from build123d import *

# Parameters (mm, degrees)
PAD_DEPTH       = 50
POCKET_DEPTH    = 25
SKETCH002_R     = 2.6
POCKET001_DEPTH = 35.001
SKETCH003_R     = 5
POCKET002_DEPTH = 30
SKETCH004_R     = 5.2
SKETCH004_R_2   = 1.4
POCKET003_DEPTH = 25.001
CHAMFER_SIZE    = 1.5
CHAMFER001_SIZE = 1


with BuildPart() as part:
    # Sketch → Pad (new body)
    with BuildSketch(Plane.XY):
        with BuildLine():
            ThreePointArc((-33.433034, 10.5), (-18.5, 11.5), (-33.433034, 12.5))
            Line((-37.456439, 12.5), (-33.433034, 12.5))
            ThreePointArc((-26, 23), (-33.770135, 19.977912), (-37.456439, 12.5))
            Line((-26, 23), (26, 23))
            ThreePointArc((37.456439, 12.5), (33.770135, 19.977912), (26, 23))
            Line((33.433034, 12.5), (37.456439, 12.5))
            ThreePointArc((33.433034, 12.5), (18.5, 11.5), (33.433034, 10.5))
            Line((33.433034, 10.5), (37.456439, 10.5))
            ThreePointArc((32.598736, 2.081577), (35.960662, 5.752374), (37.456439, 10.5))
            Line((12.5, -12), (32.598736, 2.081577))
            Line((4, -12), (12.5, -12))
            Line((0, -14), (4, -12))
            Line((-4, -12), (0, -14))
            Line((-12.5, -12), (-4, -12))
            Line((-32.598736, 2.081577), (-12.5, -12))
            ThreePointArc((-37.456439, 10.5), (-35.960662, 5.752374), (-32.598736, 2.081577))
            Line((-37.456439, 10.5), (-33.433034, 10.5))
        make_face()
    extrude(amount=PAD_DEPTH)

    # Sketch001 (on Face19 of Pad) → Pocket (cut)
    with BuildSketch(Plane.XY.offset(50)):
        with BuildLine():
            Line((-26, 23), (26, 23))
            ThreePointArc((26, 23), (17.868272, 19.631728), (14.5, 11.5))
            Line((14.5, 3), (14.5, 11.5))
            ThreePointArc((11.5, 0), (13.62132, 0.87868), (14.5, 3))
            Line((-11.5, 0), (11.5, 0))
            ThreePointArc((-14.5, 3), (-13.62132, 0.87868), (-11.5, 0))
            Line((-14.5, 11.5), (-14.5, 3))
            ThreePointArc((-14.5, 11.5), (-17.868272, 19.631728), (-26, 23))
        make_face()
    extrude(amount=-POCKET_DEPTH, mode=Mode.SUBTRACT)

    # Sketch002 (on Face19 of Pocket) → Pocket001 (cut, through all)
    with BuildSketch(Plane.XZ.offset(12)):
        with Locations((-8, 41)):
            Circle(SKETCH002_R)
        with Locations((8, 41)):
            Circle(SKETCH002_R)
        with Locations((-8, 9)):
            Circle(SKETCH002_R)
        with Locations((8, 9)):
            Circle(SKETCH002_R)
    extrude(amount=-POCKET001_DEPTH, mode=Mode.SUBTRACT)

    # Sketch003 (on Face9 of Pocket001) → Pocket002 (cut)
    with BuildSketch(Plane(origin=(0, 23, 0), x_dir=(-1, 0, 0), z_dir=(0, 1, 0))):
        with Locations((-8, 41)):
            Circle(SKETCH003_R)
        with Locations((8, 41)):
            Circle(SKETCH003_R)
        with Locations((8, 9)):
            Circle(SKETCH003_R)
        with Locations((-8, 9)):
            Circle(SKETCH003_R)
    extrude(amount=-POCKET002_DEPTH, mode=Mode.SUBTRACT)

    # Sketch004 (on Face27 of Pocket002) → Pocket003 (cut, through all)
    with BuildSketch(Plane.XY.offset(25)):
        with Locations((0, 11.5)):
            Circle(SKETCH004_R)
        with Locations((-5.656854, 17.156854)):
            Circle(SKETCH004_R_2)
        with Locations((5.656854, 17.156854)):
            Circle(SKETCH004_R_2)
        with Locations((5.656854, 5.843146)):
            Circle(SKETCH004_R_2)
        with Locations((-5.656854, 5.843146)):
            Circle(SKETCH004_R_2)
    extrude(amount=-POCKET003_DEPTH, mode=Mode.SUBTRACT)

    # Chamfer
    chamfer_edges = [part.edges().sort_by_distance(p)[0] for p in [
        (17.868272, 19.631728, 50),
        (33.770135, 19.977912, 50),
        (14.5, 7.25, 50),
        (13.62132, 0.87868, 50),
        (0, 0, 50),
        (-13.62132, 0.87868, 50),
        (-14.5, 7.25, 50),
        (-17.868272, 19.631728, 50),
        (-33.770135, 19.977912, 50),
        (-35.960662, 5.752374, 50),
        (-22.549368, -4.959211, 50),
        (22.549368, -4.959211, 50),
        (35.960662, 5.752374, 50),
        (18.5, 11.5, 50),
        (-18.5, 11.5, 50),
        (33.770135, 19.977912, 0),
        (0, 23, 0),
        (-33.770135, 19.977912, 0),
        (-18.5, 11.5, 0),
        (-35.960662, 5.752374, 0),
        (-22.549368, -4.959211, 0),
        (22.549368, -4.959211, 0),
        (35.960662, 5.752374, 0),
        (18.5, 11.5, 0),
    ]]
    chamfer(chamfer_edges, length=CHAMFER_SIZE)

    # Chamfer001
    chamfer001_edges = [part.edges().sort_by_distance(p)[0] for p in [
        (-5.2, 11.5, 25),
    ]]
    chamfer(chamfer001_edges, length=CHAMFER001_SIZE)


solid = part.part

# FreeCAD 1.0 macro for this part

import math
import FreeCAD as App
import Part
import Sketcher

V = App.Vector
Q = App.Units.Quantity


def edges_at(feature, points):
    """Names of the edges that pass closest to the given points."""
    edges = feature.Shape.Edges
    near = lambda p: min(range(len(edges)), key=lambda i: edges[i].distToShape(Part.Vertex(*p))[0])
    return sorted({f"Edge{near(p) + 1}" for p in points})

doc = App.newDocument("Part")
body = doc.addObject("PartDesign::Body", "Body")

sketch1 = doc.addObject("Sketcher::SketchObject", "Sketch")
body.addObject(sketch1)
sketch1.AttachmentSupport = (doc.XY_Plane, [""])
sketch1.MapMode = "FlatFace"
sketch1.addGeometry(Part.ArcOfCircle(Part.Circle(V(-26, 11.5, 0), V(0, 0, 1), 7.5), math.radians(-172), math.radians(172)), False)
sketch1.addGeometry(Part.LineSegment(V(-33.4, 10.5, 0), V(-37.5, 10.5, 0)), False)
sketch1.addGeometry(Part.ArcOfCircle(Part.Circle(V(-26, 11.5, 0), V(0, 0, 1), 11.5), math.radians(-175), math.radians(-125)), False)
sketch1.addGeometry(Part.LineSegment(V(-32.6, 2.1, 0), V(-12.5, -12, 0)), False)
sketch1.addGeometry(Part.LineSegment(V(-12.5, -12, 0), V(-4, -12, 0)), False)
sketch1.addGeometry(Part.LineSegment(V(-4, -12, 0), V(0, -14, 0)), False)
sketch1.addGeometry(Part.LineSegment(V(0, -14, 0), V(4, -12, 0)), False)
sketch1.addGeometry(Part.LineSegment(V(4, -12, 0), V(12.5, -12, 0)), False)
sketch1.addGeometry(Part.LineSegment(V(12.5, -12, 0), V(32.6, 2.1, 0)), False)
sketch1.addGeometry(Part.ArcOfCircle(Part.Circle(V(26, 11.5, 0), V(0, 0, 1), 11.5), math.radians(-55), math.radians(-5)), False)
sketch1.addGeometry(Part.LineSegment(V(37.5, 10.5, 0), V(33.4, 10.5, 0)), False)
sketch1.addGeometry(Part.ArcOfCircle(Part.Circle(V(26, 11.5, 0), V(0, 0, 1), 7.5), math.radians(8), math.radians(352)), False)
sketch1.addGeometry(Part.LineSegment(V(33.4, 12.5, 0), V(37.5, 12.5, 0)), False)
sketch1.addGeometry(Part.ArcOfCircle(Part.Circle(V(26, 11.5, 0), V(0, 0, 1), 11.5), math.radians(5), math.radians(90)), False)
sketch1.addGeometry(Part.LineSegment(V(26, 23, 0), V(-26, 23, 0)), False)
sketch1.addGeometry(Part.ArcOfCircle(Part.Circle(V(-26, 11.5, 0), V(0, 0, 1), 11.5), math.radians(90), math.radians(175)), False)
sketch1.addGeometry(Part.LineSegment(V(-37.5, 12.5, 0), V(-33.4, 12.5, 0)), False)
sketch1.addConstraint(Sketcher.Constraint("Coincident", 0, 1, 1, 1))
sketch1.addConstraint(Sketcher.Constraint("Coincident", 1, 2, 2, 1))
sketch1.addConstraint(Sketcher.Constraint("Tangent", 2, 2, 3, 1))
sketch1.addConstraint(Sketcher.Constraint("Coincident", 3, 2, 4, 1))
sketch1.addConstraint(Sketcher.Constraint("Coincident", 4, 2, 5, 1))
sketch1.addConstraint(Sketcher.Constraint("Coincident", 5, 2, 6, 1))
sketch1.addConstraint(Sketcher.Constraint("Coincident", 6, 2, 7, 1))
sketch1.addConstraint(Sketcher.Constraint("Coincident", 7, 2, 8, 1))
sketch1.addConstraint(Sketcher.Constraint("Tangent", 8, 2, 9, 1))
sketch1.addConstraint(Sketcher.Constraint("Coincident", 9, 2, 10, 1))
sketch1.addConstraint(Sketcher.Constraint("Coincident", 10, 2, 11, 2))
sketch1.addConstraint(Sketcher.Constraint("Coincident", 11, 1, 12, 1))
sketch1.addConstraint(Sketcher.Constraint("Coincident", 12, 2, 13, 1))
sketch1.addConstraint(Sketcher.Constraint("Tangent", 13, 2, 14, 1))
sketch1.addConstraint(Sketcher.Constraint("Tangent", 14, 2, 15, 1))
sketch1.addConstraint(Sketcher.Constraint("Coincident", 15, 2, 16, 1))
sketch1.addConstraint(Sketcher.Constraint("Coincident", 16, 2, 0, 2))
sketch1.addConstraint(Sketcher.Constraint("Horizontal", 1))
sketch1.addConstraint(Sketcher.Constraint("Horizontal", 4))
sketch1.addConstraint(Sketcher.Constraint("Horizontal", 7))
sketch1.addConstraint(Sketcher.Constraint("Horizontal", 10))
sketch1.addConstraint(Sketcher.Constraint("Horizontal", 12))
sketch1.addConstraint(Sketcher.Constraint("Horizontal", 14))
sketch1.addConstraint(Sketcher.Constraint("Horizontal", 16))
sketch1.addConstraint(Sketcher.Constraint("Coincident", 2, 3, 0, 3))
sketch1.addConstraint(Sketcher.Constraint("Coincident", 11, 3, 9, 3))
sketch1.addConstraint(Sketcher.Constraint("Coincident", 13, 3, 9, 3))
sketch1.addConstraint(Sketcher.Constraint("Coincident", 15, 3, 0, 3))
sketch1.addConstraint(Sketcher.Constraint("Equal", 2, 9))
sketch1.addConstraint(Sketcher.Constraint("Equal", 0, 11))
sketch1.addConstraint(Sketcher.Constraint("Equal", 13, 15))
sketch1.addConstraint(Sketcher.Constraint("Symmetric", 4, 2, 6, 2, -2))
sketch1.addConstraint(Sketcher.Constraint("Symmetric", 2, 2, 8, 2, -2))
sketch1.addConstraint(Sketcher.Constraint("PointOnObject", 5, 2, -2))
sketch1.addConstraint(Sketcher.Constraint("Horizontal", 1, 2, 9, 2))
sketch1.addConstraint(Sketcher.Constraint("Horizontal", 12, 2, 15, 2))
sketch1.addConstraint(Sketcher.Constraint("Vertical", 10, 2, 11, 1))
sketch1.addConstraint(Sketcher.Constraint("Vertical", 9, 2, 12, 2))
sketch1.addConstraint(Sketcher.Constraint("Radius", 0, Q("7.5 mm")))
sketch1.addConstraint(Sketcher.Constraint("Radius", 13, Q("11.500001 mm")))
sketch1.addConstraint(Sketcher.Constraint("DistanceX", 14, 2, 14, 1, Q("52 mm")))
sketch1.addConstraint(Sketcher.Constraint("DistanceX", 4, 1, 4, 2, Q("8.5 mm")))
sketch1.addConstraint(Sketcher.Constraint("DistanceY", 3, 2, -1, 1, Q("12 mm")))
sketch1.addConstraint(Sketcher.Constraint("DistanceX", 4, 2, -1, 1, Q("4 mm")))
sketch1.addConstraint(Sketcher.Constraint("DistanceY", 5, 2, -1, 1, Q("14 mm")))
sketch1.addConstraint(Sketcher.Constraint("DistanceY", -1, 1, 13, 2, Q("23 mm")))
sketch1.addConstraint(Sketcher.Constraint("DistanceY", 0, 1, 0, 3, Q("1 mm")))
pad1 = doc.addObject("PartDesign::Pad", "Pad")
body.addObject(pad1)
pad1.Profile = sketch1
pad1.Length = 50

sketch2 = doc.addObject("Sketcher::SketchObject", "Sketch001")
body.addObject(sketch2)
sketch2.AttachmentSupport = (doc.XY_Plane, [""])
sketch2.MapMode = "FlatFace"
sketch2.AttachmentOffset = App.Placement(V(0, 0, 50), App.Rotation())
sketch2.addGeometry(Part.LineSegment(V(26, 23, 0), V(-26, 23, 0)), False)
sketch2.addGeometry(Part.ArcOfCircle(Part.Circle(V(-26, 11.5, 0), V(0, 0, 1), 11.5), math.radians(0), math.radians(90)), False)
sketch2.addGeometry(Part.LineSegment(V(-14.5, 11.5, 0), V(-14.5, 3, 0)), False)
sketch2.addGeometry(Part.ArcOfCircle(Part.Circle(V(-11.5, 3, 0), V(0, 0, 1), 3), math.radians(-180), math.radians(-90)), False)
sketch2.addGeometry(Part.LineSegment(V(-11.5, 0, 0), V(11.5, 0, 0)), False)
sketch2.addGeometry(Part.ArcOfCircle(Part.Circle(V(11.5, 3, 0), V(0, 0, 1), 3), math.radians(-90), math.radians(0)), False)
sketch2.addGeometry(Part.LineSegment(V(14.5, 3, 0), V(14.5, 11.5, 0)), False)
sketch2.addGeometry(Part.ArcOfCircle(Part.Circle(V(26, 11.5, 0), V(0, 0, 1), 11.5), math.radians(90), math.radians(180)), False)
sketch2.addConstraint(Sketcher.Constraint("Tangent", 0, 2, 1, 2))
sketch2.addConstraint(Sketcher.Constraint("Tangent", 1, 1, 2, 1))
sketch2.addConstraint(Sketcher.Constraint("Tangent", 2, 2, 3, 1))
sketch2.addConstraint(Sketcher.Constraint("Tangent", 3, 2, 4, 1))
sketch2.addConstraint(Sketcher.Constraint("Tangent", 4, 2, 5, 1))
sketch2.addConstraint(Sketcher.Constraint("Tangent", 5, 2, 6, 1))
sketch2.addConstraint(Sketcher.Constraint("Tangent", 6, 2, 7, 2))
sketch2.addConstraint(Sketcher.Constraint("Tangent", 7, 1, 0, 1))
sketch2.addConstraint(Sketcher.Constraint("Horizontal", 0))
sketch2.addConstraint(Sketcher.Constraint("Vertical", 2))
sketch2.addConstraint(Sketcher.Constraint("Horizontal", 4))
sketch2.addConstraint(Sketcher.Constraint("Vertical", 6))
sketch2.addConstraint(Sketcher.Constraint("Equal", 3, 5))
sketch2.addConstraint(Sketcher.Constraint("Equal", 1, 7))
sketch2.addConstraint(Sketcher.Constraint("Symmetric", 3, 2, 4, 2, -1, 1))
sketch2.addConstraint(Sketcher.Constraint("Radius", 3, Q("3.000001 mm")))
sketch2.addConstraint(Sketcher.Constraint("Radius", 1, Q("11.5 mm")))
sketch2.addConstraint(Sketcher.Constraint("DistanceX", 0, 2, 0, 1, Q("52 mm")))
sketch2.addConstraint(Sketcher.Constraint("DistanceY", 2, 2, 2, 1, Q("8.5 mm")))
pocket1 = doc.addObject("PartDesign::Pocket", "Pocket")
body.addObject(pocket1)
pocket1.Profile = sketch2
pocket1.Length = 25

sketch3 = doc.addObject("Sketcher::SketchObject", "Sketch002")
body.addObject(sketch3)
sketch3.AttachmentSupport = (doc.XZ_Plane, [""])
sketch3.MapMode = "FlatFace"
sketch3.AttachmentOffset = App.Placement(V(0, 0, 12), App.Rotation())
sketch3.addGeometry(Part.Circle(V(-8, 41, 0), V(0, 0, 1), 2.6), False)
sketch3.addGeometry(Part.Circle(V(8, 41, 0), V(0, 0, 1), 2.6), False)
sketch3.addGeometry(Part.Circle(V(-8, 9, 0), V(0, 0, 1), 2.6), False)
sketch3.addGeometry(Part.Circle(V(8, 9, 0), V(0, 0, 1), 2.6), False)
sketch3.addConstraint(Sketcher.Constraint("Equal", 0, 1))
sketch3.addConstraint(Sketcher.Constraint("Equal", 1, 2))
sketch3.addConstraint(Sketcher.Constraint("Equal", 2, 3))
sketch3.addConstraint(Sketcher.Constraint("Symmetric", 0, 3, 1, 3, -2))
sketch3.addConstraint(Sketcher.Constraint("Symmetric", 2, 3, 3, 3, -2))
sketch3.addConstraint(Sketcher.Constraint("Vertical", 0, 3, 2, 3))
sketch3.addConstraint(Sketcher.Constraint("Diameter", 0, Q("5.2 mm")))
sketch3.addConstraint(Sketcher.Constraint("DistanceX", 0, 3, -1, 1, Q("8 mm")))
sketch3.addConstraint(Sketcher.Constraint("DistanceY", -1, 1, 0, 3, Q("41 mm")))
sketch3.addConstraint(Sketcher.Constraint("DistanceY", -1, 1, 2, 3, Q("9 mm")))
pocket2 = doc.addObject("PartDesign::Pocket", "Pocket001")
body.addObject(pocket2)
pocket2.Profile = sketch3
pocket2.Type = "ThroughAll"

sketch4 = doc.addObject("Sketcher::SketchObject", "Sketch003")
body.addObject(sketch4)
sketch4.AttachmentSupport = (doc.XZ_Plane, [""])
sketch4.MapMode = "FlatFace"
sketch4.AttachmentOffset = App.Placement(V(0, 0, -23), App.Rotation())
sketch4.addGeometry(Part.Circle(V(8, 41, 0), V(0, 0, 1), 5), False)
sketch4.addGeometry(Part.Circle(V(-8, 41, 0), V(0, 0, 1), 5), False)
sketch4.addGeometry(Part.Circle(V(-8, 9, 0), V(0, 0, 1), 5), False)
sketch4.addGeometry(Part.Circle(V(8, 9, 0), V(0, 0, 1), 5), False)
sketch4.addConstraint(Sketcher.Constraint("Equal", 0, 1))
sketch4.addConstraint(Sketcher.Constraint("Equal", 1, 2))
sketch4.addConstraint(Sketcher.Constraint("Equal", 2, 3))
sketch4.addConstraint(Sketcher.Constraint("Symmetric", 0, 3, 1, 3, -2))
sketch4.addConstraint(Sketcher.Constraint("Symmetric", 2, 3, 3, 3, -2))
sketch4.addConstraint(Sketcher.Constraint("Vertical", 1, 3, 2, 3))
sketch4.addConstraint(Sketcher.Constraint("Diameter", 0, Q("10 mm")))
sketch4.addConstraint(Sketcher.Constraint("DistanceX", -1, 1, 0, 3, Q("8 mm")))
sketch4.addConstraint(Sketcher.Constraint("DistanceY", -1, 1, 0, 3, Q("41 mm")))
sketch4.addConstraint(Sketcher.Constraint("DistanceY", -1, 1, 2, 3, Q("9 mm")))
pocket3 = doc.addObject("PartDesign::Pocket", "Pocket002")
body.addObject(pocket3)
pocket3.Profile = sketch4
pocket3.Length = 30
pocket3.Reversed = True

sketch5 = doc.addObject("Sketcher::SketchObject", "Sketch004")
body.addObject(sketch5)
sketch5.AttachmentSupport = (doc.XY_Plane, [""])
sketch5.MapMode = "FlatFace"
sketch5.AttachmentOffset = App.Placement(V(0, 0, 25), App.Rotation())
sketch5.addGeometry(Part.Circle(V(0, 11.5, 0), V(0, 0, 1), 5.2), False)
sketch5.addGeometry(Part.Circle(V(-5.7, 17.2, 0), V(0, 0, 1), 1.4), False)
sketch5.addGeometry(Part.Circle(V(5.7, 17.2, 0), V(0, 0, 1), 1.4), False)
sketch5.addGeometry(Part.Circle(V(5.7, 5.8, 0), V(0, 0, 1), 1.4), False)
sketch5.addGeometry(Part.Circle(V(-5.7, 5.8, 0), V(0, 0, 1), 1.4), False)
sketch5.addConstraint(Sketcher.Constraint("Equal", 1, 2))
sketch5.addConstraint(Sketcher.Constraint("Equal", 2, 3))
sketch5.addConstraint(Sketcher.Constraint("Equal", 3, 4))
sketch5.addConstraint(Sketcher.Constraint("Symmetric", 1, 3, 2, 3, -2))
sketch5.addConstraint(Sketcher.Constraint("Symmetric", 3, 3, 4, 3, -2))
sketch5.addConstraint(Sketcher.Constraint("PointOnObject", 0, 3, -2))
sketch5.addConstraint(Sketcher.Constraint("Vertical", 2, 3, 3, 3))
sketch5.addConstraint(Sketcher.Constraint("Diameter", 0, Q("10.4 mm")))
sketch5.addConstraint(Sketcher.Constraint("Diameter", 1, Q("2.8 mm")))
sketch5.addConstraint(Sketcher.Constraint("DistanceY", -1, 1, 0, 3, Q("11.5 mm")))
sketch5.addConstraint(Sketcher.Constraint("DistanceX", 1, 3, -1, 1, Q("5.656854 mm")))
sketch5.addConstraint(Sketcher.Constraint("DistanceY", -1, 1, 1, 3, Q("17.156854 mm")))
sketch5.addConstraint(Sketcher.Constraint("DistanceY", -1, 1, 3, 3, Q("5.843146 mm")))
pocket4 = doc.addObject("PartDesign::Pocket", "Pocket003")
body.addObject(pocket4)
pocket4.Profile = sketch5
pocket4.Type = "ThroughAll"
doc.recompute()

chamfer = doc.addObject("PartDesign::Chamfer", "Chamfer")
body.addObject(chamfer)
chamfer.Base = (pocket4, edges_at(pocket4, [
    (17.868, 19.632, 50),
    (33.77, 19.978, 50),
    (14.5, 7.25, 50),
    (13.621, 0.879, 50),
    (0, 0, 50),
    (-13.621, 0.879, 50),
    (-14.5, 7.25, 50),
    (-17.868, 19.632, 50),
    (-33.77, 19.978, 50),
    (-35.961, 5.752, 50),
    (-22.549, -4.959, 50),
    (22.549, -4.959, 50),
    (35.961, 5.752, 50),
    (18.5, 11.5, 50),
    (-18.5, 11.5, 50),
    (33.77, 19.978, 0),
    (0, 23, 0),
    (-33.77, 19.978, 0),
    (-18.5, 11.5, 0),
    (-35.961, 5.752, 0),
    (-22.549, -4.959, 0),
    (22.549, -4.959, 0),
    (35.961, 5.752, 0),
    (18.5, 11.5, 0),
]))
chamfer.Size = 1.5
doc.recompute()

chamfer2 = doc.addObject("PartDesign::Chamfer", "Chamfer001")
body.addObject(chamfer2)
chamfer2.Base = (chamfer, edges_at(chamfer, [(-5.2, 11.5, 25)]))
chamfer2.Size = 1

doc.recompute()
